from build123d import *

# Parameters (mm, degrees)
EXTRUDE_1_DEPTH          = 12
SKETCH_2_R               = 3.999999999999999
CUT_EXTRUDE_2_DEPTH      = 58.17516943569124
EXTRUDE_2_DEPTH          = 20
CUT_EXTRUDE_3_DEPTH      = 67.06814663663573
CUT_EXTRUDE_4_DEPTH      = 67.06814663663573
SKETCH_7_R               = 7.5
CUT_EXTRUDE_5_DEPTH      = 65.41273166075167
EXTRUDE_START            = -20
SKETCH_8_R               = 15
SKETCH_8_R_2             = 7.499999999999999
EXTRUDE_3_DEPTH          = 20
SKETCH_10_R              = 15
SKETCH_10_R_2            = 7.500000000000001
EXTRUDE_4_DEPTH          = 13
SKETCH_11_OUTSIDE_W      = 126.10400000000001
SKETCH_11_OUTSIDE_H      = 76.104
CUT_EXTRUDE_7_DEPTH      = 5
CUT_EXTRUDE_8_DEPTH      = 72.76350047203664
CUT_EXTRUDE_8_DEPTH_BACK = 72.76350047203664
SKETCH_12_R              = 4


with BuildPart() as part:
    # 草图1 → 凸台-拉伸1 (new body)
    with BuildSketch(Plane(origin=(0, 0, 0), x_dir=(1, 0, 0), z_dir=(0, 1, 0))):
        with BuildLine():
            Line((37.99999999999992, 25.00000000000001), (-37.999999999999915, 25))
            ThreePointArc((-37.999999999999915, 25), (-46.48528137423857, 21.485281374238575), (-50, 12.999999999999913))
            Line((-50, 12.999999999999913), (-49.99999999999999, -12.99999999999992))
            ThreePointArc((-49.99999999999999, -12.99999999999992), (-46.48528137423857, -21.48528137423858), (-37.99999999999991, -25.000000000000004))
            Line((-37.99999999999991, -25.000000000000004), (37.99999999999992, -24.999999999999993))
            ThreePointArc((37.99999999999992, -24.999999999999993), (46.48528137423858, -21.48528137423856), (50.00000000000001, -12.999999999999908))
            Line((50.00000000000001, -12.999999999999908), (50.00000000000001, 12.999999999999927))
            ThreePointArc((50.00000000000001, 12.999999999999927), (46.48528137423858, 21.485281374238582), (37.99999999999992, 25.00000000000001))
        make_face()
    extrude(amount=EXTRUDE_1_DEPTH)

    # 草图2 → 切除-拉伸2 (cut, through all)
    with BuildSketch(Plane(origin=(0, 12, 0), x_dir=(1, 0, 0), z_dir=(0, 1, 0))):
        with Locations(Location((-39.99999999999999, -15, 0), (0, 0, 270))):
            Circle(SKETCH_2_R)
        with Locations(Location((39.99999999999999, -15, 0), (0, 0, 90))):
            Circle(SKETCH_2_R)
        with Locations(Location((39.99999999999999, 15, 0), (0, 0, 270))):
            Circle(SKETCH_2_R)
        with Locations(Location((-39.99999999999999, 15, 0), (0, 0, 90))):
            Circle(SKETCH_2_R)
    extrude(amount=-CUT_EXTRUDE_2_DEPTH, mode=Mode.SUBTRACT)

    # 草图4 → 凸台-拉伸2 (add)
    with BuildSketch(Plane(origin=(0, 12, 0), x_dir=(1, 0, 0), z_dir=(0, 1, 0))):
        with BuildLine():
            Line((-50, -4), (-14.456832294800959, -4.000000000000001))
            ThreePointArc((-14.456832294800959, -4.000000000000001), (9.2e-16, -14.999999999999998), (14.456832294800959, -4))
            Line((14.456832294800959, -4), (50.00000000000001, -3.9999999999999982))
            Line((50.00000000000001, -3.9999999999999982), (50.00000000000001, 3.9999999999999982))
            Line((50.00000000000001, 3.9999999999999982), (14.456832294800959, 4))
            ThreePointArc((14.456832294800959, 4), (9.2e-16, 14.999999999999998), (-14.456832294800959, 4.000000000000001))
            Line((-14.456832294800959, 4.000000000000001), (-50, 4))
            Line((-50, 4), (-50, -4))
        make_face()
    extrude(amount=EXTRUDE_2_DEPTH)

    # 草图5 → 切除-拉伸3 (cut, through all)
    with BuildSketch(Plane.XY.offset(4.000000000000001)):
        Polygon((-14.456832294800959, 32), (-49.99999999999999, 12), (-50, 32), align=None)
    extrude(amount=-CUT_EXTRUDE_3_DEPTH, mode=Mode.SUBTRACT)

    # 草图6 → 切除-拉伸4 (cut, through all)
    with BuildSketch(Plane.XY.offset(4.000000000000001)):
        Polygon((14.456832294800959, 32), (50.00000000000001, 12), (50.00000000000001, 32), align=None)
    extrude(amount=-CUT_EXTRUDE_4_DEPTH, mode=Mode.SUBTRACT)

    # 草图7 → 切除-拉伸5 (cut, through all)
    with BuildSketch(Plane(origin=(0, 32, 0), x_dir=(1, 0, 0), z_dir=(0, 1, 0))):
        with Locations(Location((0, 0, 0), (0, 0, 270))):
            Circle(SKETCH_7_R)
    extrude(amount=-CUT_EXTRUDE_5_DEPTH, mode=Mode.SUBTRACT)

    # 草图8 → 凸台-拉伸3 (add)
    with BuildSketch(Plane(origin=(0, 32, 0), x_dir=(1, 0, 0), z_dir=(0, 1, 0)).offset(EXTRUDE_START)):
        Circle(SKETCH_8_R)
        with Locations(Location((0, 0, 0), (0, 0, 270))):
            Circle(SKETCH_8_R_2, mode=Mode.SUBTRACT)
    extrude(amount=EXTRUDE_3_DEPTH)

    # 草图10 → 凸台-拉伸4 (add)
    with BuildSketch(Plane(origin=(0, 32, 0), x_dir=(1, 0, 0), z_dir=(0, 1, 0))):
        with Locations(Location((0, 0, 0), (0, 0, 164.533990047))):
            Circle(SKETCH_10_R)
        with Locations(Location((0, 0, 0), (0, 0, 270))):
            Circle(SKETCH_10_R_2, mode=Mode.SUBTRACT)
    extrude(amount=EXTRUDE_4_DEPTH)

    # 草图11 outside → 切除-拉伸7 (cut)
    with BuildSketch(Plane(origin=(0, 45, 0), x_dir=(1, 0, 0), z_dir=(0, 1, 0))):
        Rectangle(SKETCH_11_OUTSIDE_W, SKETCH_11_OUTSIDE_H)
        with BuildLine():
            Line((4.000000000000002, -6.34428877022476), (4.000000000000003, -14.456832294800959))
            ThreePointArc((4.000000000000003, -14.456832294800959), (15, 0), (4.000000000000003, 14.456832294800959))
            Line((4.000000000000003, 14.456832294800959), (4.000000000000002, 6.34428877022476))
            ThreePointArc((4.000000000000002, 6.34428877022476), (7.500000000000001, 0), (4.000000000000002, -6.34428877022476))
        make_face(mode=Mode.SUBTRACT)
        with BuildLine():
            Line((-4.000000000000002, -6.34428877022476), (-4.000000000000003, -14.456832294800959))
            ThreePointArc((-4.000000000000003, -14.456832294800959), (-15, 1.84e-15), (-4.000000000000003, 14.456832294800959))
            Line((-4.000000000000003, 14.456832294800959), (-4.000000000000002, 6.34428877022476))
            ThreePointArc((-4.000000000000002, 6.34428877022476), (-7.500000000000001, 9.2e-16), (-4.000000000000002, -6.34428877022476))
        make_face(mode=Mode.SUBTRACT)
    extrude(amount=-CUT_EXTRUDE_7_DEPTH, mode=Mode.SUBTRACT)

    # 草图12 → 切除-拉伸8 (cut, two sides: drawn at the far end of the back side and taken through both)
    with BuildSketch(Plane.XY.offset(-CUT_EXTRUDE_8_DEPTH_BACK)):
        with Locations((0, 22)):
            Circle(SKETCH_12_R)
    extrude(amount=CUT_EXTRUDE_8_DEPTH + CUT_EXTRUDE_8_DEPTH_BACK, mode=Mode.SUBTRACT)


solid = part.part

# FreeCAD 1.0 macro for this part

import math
import FreeCAD as App
import Part
import Sketcher
from FreeCAD import Vector

doc = App.newDocument("Part")
body = doc.addObject("PartDesign::Body", "Body")

# Sketch on XZ plane
sketch1 = doc.addObject("Sketcher::SketchObject", "Sketch")
body.addObject(sketch1)
sketch1.AttachmentSupport = (doc.XZ_Plane, [""])
sketch1.MapMode = "FlatFace"
sketch1.addGeometry(Part.LineSegment(Vector(38, -25, 0), Vector(-38, -25, 0)), False)
sketch1.addGeometry(Part.ArcOfCircle(Part.Circle(Vector(-38, -13, 0), Vector(0, 0, 1), 12), math.radians(180), math.radians(270)), False)
sketch1.addGeometry(Part.LineSegment(Vector(-50, -13, 0), Vector(-50, 13, 0)), False)
sketch1.addGeometry(Part.ArcOfCircle(Part.Circle(Vector(-38, 13, 0), Vector(0, 0, 1), 12), math.radians(90), math.radians(180)), False)
sketch1.addGeometry(Part.LineSegment(Vector(-38, 25, 0), Vector(38, 25, 0)), False)
sketch1.addGeometry(Part.ArcOfCircle(Part.Circle(Vector(38, 13, 0), Vector(0, 0, 1), 12), math.radians(0), math.radians(90)), False)
sketch1.addGeometry(Part.LineSegment(Vector(50, 13, 0), Vector(50, -13, 0)), False)
sketch1.addGeometry(Part.ArcOfCircle(Part.Circle(Vector(38, -13, 0), Vector(0, 0, 1), 12), math.radians(-90), math.radians(0)), False)
sketch1.addConstraint(Sketcher.Constraint("Tangent", 0, 2, 1, 2))
sketch1.addConstraint(Sketcher.Constraint("Tangent", 1, 1, 2, 1))
sketch1.addConstraint(Sketcher.Constraint("Tangent", 2, 2, 3, 2))
sketch1.addConstraint(Sketcher.Constraint("Tangent", 3, 1, 4, 1))
sketch1.addConstraint(Sketcher.Constraint("Tangent", 4, 2, 5, 2))
sketch1.addConstraint(Sketcher.Constraint("Tangent", 5, 1, 6, 1))
sketch1.addConstraint(Sketcher.Constraint("Tangent", 6, 2, 7, 2))
sketch1.addConstraint(Sketcher.Constraint("Tangent", 7, 1, 0, 1))
sketch1.addConstraint(Sketcher.Constraint("Horizontal", 0))
sketch1.addConstraint(Sketcher.Constraint("Vertical", 2))
sketch1.addConstraint(Sketcher.Constraint("Horizontal", 4))
sketch1.addConstraint(Sketcher.Constraint("Vertical", 6))
sketch1.addConstraint(Sketcher.Constraint("Equal", 1, 3))
sketch1.addConstraint(Sketcher.Constraint("Equal", 3, 5))
sketch1.addConstraint(Sketcher.Constraint("Equal", 5, 7))
sketch1.addConstraint(Sketcher.Constraint("Symmetric", 1, 3, 5, 3, -1, 1))
sketch1.addConstraint(Sketcher.Constraint("Radius", 1, 12.0))
sketch1.addConstraint(Sketcher.Constraint("DistanceX", 0, 2, 0, 1, 76.0))
sketch1.addConstraint(Sketcher.Constraint("DistanceY", 2, 1, 2, 2, 26.0))
pad1 = doc.addObject("PartDesign::Pad", "Pad")
body.addObject(pad1)
pad1.Profile = sketch1
pad1.Length = 12
pad1.Reversed = True

# Sketch on XZ plane
sketch2 = doc.addObject("Sketcher::SketchObject", "Sketch001")
body.addObject(sketch2)
sketch2.AttachmentSupport = (doc.XZ_Plane, [""])
sketch2.MapMode = "FlatFace"
sketch2.AttachmentOffset = App.Placement(Vector(0, 0, -12), App.Rotation())
sketch2.addGeometry(Part.Circle(Vector(-40, 15, 0), Vector(0, 0, 1), 4), False)
sketch2.addGeometry(Part.Circle(Vector(40, 15, 0), Vector(0, 0, 1), 4), False)
sketch2.addGeometry(Part.Circle(Vector(40, -15, 0), Vector(0, 0, 1), 4), False)
sketch2.addGeometry(Part.Circle(Vector(-40, -15, 0), Vector(0, 0, 1), 4), False)
sketch2.addConstraint(Sketcher.Constraint("Equal", 0, 1))
sketch2.addConstraint(Sketcher.Constraint("Equal", 1, 2))
sketch2.addConstraint(Sketcher.Constraint("Equal", 2, 3))
sketch2.addConstraint(Sketcher.Constraint("Symmetric", 0, 3, 2, 3, -1, 1))
sketch2.addConstraint(Sketcher.Constraint("Symmetric", 1, 3, 3, 3, -1, 1))
sketch2.addConstraint(Sketcher.Constraint("Symmetric", 0, 3, 1, 3, -2))
sketch2.addConstraint(Sketcher.Constraint("Diameter", 0, 8.0))
sketch2.addConstraint(Sketcher.Constraint("DistanceX", 0, 3, -1, 1, 40.0))
sketch2.addConstraint(Sketcher.Constraint("DistanceY", -1, 1, 0, 3, 15.0))
pocket1 = doc.addObject("PartDesign::Pocket", "Pocket")
body.addObject(pocket1)
pocket1.Profile = sketch2
pocket1.Type = "ThroughAll"
pocket1.Reversed = True

# Sketch on XZ plane
sketch3 = doc.addObject("Sketcher::SketchObject", "Sketch002")
body.addObject(sketch3)
sketch3.AttachmentSupport = (doc.XZ_Plane, [""])
sketch3.MapMode = "FlatFace"
sketch3.AttachmentOffset = App.Placement(Vector(0, 0, -12), App.Rotation())
sketch3.addGeometry(Part.LineSegment(Vector(-50, 4, 0), Vector(-14.456832, 4, 0)), False)
sketch3.addGeometry(Part.ArcOfCircle(Part.Circle(Vector(0, 0, 0), Vector(0, 0, 1), 15), math.radians(15.46601), math.radians(164.53399)), False)
sketch3.addGeometry(Part.LineSegment(Vector(14.456832, 4, 0), Vector(50, 4, 0)), False)
sketch3.addGeometry(Part.LineSegment(Vector(50, 4, 0), Vector(50, -4, 0)), False)
sketch3.addGeometry(Part.LineSegment(Vector(50, -4, 0), Vector(14.456832, -4, 0)), False)
sketch3.addGeometry(Part.ArcOfCircle(Part.Circle(Vector(0, 0, 0), Vector(0, 0, 1), 15), math.radians(-164.53399), math.radians(-15.46601)), False)
sketch3.addGeometry(Part.LineSegment(Vector(-14.456832, -4, 0), Vector(-50, -4, 0)), False)
sketch3.addGeometry(Part.LineSegment(Vector(-50, -4, 0), Vector(-50, 4, 0)), False)
sketch3.addConstraint(Sketcher.Constraint("Coincident", 0, 2, 1, 2))
sketch3.addConstraint(Sketcher.Constraint("Coincident", 1, 1, 2, 1))
sketch3.addConstraint(Sketcher.Constraint("Coincident", 2, 2, 3, 1))
sketch3.addConstraint(Sketcher.Constraint("Coincident", 3, 2, 4, 1))
sketch3.addConstraint(Sketcher.Constraint("Coincident", 4, 2, 5, 2))
sketch3.addConstraint(Sketcher.Constraint("Coincident", 5, 1, 6, 1))
sketch3.addConstraint(Sketcher.Constraint("Coincident", 6, 2, 7, 1))
sketch3.addConstraint(Sketcher.Constraint("Coincident", 7, 2, 0, 1))
sketch3.addConstraint(Sketcher.Constraint("Horizontal", 0))
sketch3.addConstraint(Sketcher.Constraint("Horizontal", 2))
sketch3.addConstraint(Sketcher.Constraint("Vertical", 3))
sketch3.addConstraint(Sketcher.Constraint("Horizontal", 4))
sketch3.addConstraint(Sketcher.Constraint("Horizontal", 6))
sketch3.addConstraint(Sketcher.Constraint("Vertical", 7))
sketch3.addConstraint(Sketcher.Constraint("Coincident", 1, 3, -1, 1))
sketch3.addConstraint(Sketcher.Constraint("Coincident", 5, 3, -1, 1))
sketch3.addConstraint(Sketcher.Constraint("Equal", 1, 5))
sketch3.addConstraint(Sketcher.Constraint("Symmetric", 2, 2, 6, 2, -1, 1))
sketch3.addConstraint(Sketcher.Constraint("Horizontal", 0, 2, 1, 1))
sketch3.addConstraint(Sketcher.Constraint("Horizontal", 4, 2, 5, 1))
sketch3.addConstraint(Sketcher.Constraint("Radius", 1, 15.0))
sketch3.addConstraint(Sketcher.Constraint("DistanceY", 3, 2, 3, 1, 8.0))
sketch3.addConstraint(Sketcher.Constraint("DistanceX", -1, 1, 2, 2, 50.0))
pad2 = doc.addObject("PartDesign::Pad", "Pad001")
body.addObject(pad2)
pad2.Profile = sketch3
pad2.Length = 20
pad2.Reversed = True

# Sketch on XY plane
sketch4 = doc.addObject("Sketcher::SketchObject", "Sketch003")
body.addObject(sketch4)
sketch4.AttachmentSupport = (doc.XY_Plane, [""])
sketch4.MapMode = "FlatFace"
sketch4.AttachmentOffset = App.Placement(Vector(0, 0, 4), App.Rotation())
sketch4.addGeometry(Part.LineSegment(Vector(-50, 12, 0), Vector(-14.456832, 32, 0)), False)
sketch4.addGeometry(Part.LineSegment(Vector(-14.456832, 32, 0), Vector(-50, 32, 0)), False)
sketch4.addGeometry(Part.LineSegment(Vector(-50, 32, 0), Vector(-50, 12, 0)), False)
sketch4.addConstraint(Sketcher.Constraint("Coincident", 0, 2, 1, 1))
sketch4.addConstraint(Sketcher.Constraint("Coincident", 1, 2, 2, 1))
sketch4.addConstraint(Sketcher.Constraint("Coincident", 2, 2, 0, 1))
sketch4.addConstraint(Sketcher.Constraint("Horizontal", 1))
sketch4.addConstraint(Sketcher.Constraint("Vertical", 2))
sketch4.addConstraint(Sketcher.Constraint("DistanceY", 2, 2, 2, 1, 20.0))
sketch4.addConstraint(Sketcher.Constraint("DistanceY", -1, 1, 0, 2, 32.0))
sketch4.addConstraint(Sketcher.Constraint("DistanceX", 1, 2, -1, 1, 50.0))
sketch4.addConstraint(Sketcher.Constraint("Distance", 0, 40.783781))
pocket2 = doc.addObject("PartDesign::Pocket", "Pocket001")
body.addObject(pocket2)
pocket2.Profile = sketch4
pocket2.Type = "ThroughAll"

# Sketch on XY plane
sketch5 = doc.addObject("Sketcher::SketchObject", "Sketch004")
body.addObject(sketch5)
sketch5.AttachmentSupport = (doc.XY_Plane, [""])
sketch5.MapMode = "FlatFace"
sketch5.AttachmentOffset = App.Placement(Vector(0, 0, 4), App.Rotation())
sketch5.addGeometry(Part.LineSegment(Vector(14.456832, 32, 0), Vector(50, 12, 0)), False)
sketch5.addGeometry(Part.LineSegment(Vector(50, 12, 0), Vector(50, 32, 0)), False)
sketch5.addGeometry(Part.LineSegment(Vector(50, 32, 0), Vector(14.456832, 32, 0)), False)
sketch5.addConstraint(Sketcher.Constraint("Coincident", 0, 2, 1, 1))
sketch5.addConstraint(Sketcher.Constraint("Coincident", 1, 2, 2, 1))
sketch5.addConstraint(Sketcher.Constraint("Coincident", 2, 2, 0, 1))
sketch5.addConstraint(Sketcher.Constraint("Vertical", 1))
sketch5.addConstraint(Sketcher.Constraint("Horizontal", 2))
sketch5.addConstraint(Sketcher.Constraint("DistanceY", 1, 1, 1, 2, 20.0))
sketch5.addConstraint(Sketcher.Constraint("DistanceX", -1, 1, 0, 2, 50.0))
sketch5.addConstraint(Sketcher.Constraint("DistanceY", -1, 1, 0, 2, 12.0))
sketch5.addConstraint(Sketcher.Constraint("Distance", 0, 40.783781))
pocket3 = doc.addObject("PartDesign::Pocket", "Pocket002")
body.addObject(pocket3)
pocket3.Profile = sketch5
pocket3.Type = "ThroughAll"

# Sketch on XZ plane
sketch6 = doc.addObject("Sketcher::SketchObject", "Sketch005")
body.addObject(sketch6)
sketch6.AttachmentSupport = (doc.XZ_Plane, [""])
sketch6.MapMode = "FlatFace"
sketch6.AttachmentOffset = App.Placement(Vector(0, 0, -32), App.Rotation())
sketch6.addGeometry(Part.Circle(Vector(0, 0, 0), Vector(0, 0, 1), 7.5), False)
sketch6.addConstraint(Sketcher.Constraint("Coincident", 0, 3, -1, 1))
sketch6.addConstraint(Sketcher.Constraint("Diameter", 0, 15.0))
pocket4 = doc.addObject("PartDesign::Pocket", "Pocket003")
body.addObject(pocket4)
pocket4.Profile = sketch6
pocket4.Type = "ThroughAll"
pocket4.Reversed = True

# Sketch on XZ plane
sketch7 = doc.addObject("Sketcher::SketchObject", "Sketch006")
body.addObject(sketch7)
sketch7.AttachmentSupport = (doc.XZ_Plane, [""])
sketch7.MapMode = "FlatFace"
sketch7.AttachmentOffset = App.Placement(Vector(0, 0, -12), App.Rotation())
sketch7.addGeometry(Part.Circle(Vector(0, 0, 0), Vector(0, 0, 1), 15), False)
sketch7.addGeometry(Part.Circle(Vector(0, 0, 0), Vector(0, 0, 1), 7.5), False)
sketch7.addConstraint(Sketcher.Constraint("Coincident", 0, 3, -1, 1))
sketch7.addConstraint(Sketcher.Constraint("Coincident", 1, 3, -1, 1))
sketch7.addConstraint(Sketcher.Constraint("Diameter", 0, 30.0))
sketch7.addConstraint(Sketcher.Constraint("Diameter", 1, 15.0))
pad3 = doc.addObject("PartDesign::Pad", "Pad002")
body.addObject(pad3)
pad3.Profile = sketch7
pad3.Length = 20
pad3.Reversed = True

# Sketch on XZ plane
sketch8 = doc.addObject("Sketcher::SketchObject", "Sketch007")
body.addObject(sketch8)
sketch8.AttachmentSupport = (doc.XZ_Plane, [""])
sketch8.MapMode = "FlatFace"
sketch8.AttachmentOffset = App.Placement(Vector(0, 0, -32), App.Rotation())
sketch8.addGeometry(Part.Circle(Vector(0, 0, 0), Vector(0, 0, 1), 15), False)
sketch8.addGeometry(Part.Circle(Vector(0, 0, 0), Vector(0, 0, 1), 7.5), False)
sketch8.addConstraint(Sketcher.Constraint("Coincident", 0, 3, -1, 1))
sketch8.addConstraint(Sketcher.Constraint("Coincident", 1, 3, -1, 1))
sketch8.addConstraint(Sketcher.Constraint("Diameter", 0, 30.0))
sketch8.addConstraint(Sketcher.Constraint("Diameter", 1, 15.0))
pad4 = doc.addObject("PartDesign::Pad", "Pad003")
body.addObject(pad4)
pad4.Profile = sketch8
pad4.Length = 13
pad4.Reversed = True

# Sketch on XZ plane
sketch9 = doc.addObject("Sketcher::SketchObject", "Sketch008")
body.addObject(sketch9)
sketch9.AttachmentSupport = (doc.XZ_Plane, [""])
sketch9.MapMode = "FlatFace"
sketch9.AttachmentOffset = App.Placement(Vector(0, 0, -45), App.Rotation())
sketch9.addGeometry(Part.LineSegment(Vector(-63.052, -38.052, 0), Vector(-63.052, 38.052, 0)), False)
sketch9.addGeometry(Part.LineSegment(Vector(-63.052, 38.052, 0), Vector(63.052, 38.052, 0)), False)
sketch9.addGeometry(Part.LineSegment(Vector(63.052, 38.052, 0), Vector(63.052, -38.052, 0)), False)
sketch9.addGeometry(Part.LineSegment(Vector(63.052, -38.052, 0), Vector(-63.052, -38.052, 0)), False)
sketch9.addGeometry(Part.ArcOfCircle(Part.Circle(Vector(0, 0, 0), Vector(0, 0, 1), 7.5), math.radians(122.230953), math.radians(237.769047)), False)
sketch9.addGeometry(Part.LineSegment(Vector(-4, 6.344289, 0), Vector(-4, 14.456832, 0)), False)
sketch9.addGeometry(Part.ArcOfCircle(Part.Circle(Vector(0, 0, 0), Vector(0, 0, 1), 15), math.radians(105.46601), math.radians(254.53399)), False)
sketch9.addGeometry(Part.LineSegment(Vector(-4, -14.456832, 0), Vector(-4, -6.344289, 0)), False)
sketch9.addGeometry(Part.LineSegment(Vector(4, 14.456832, 0), Vector(4, 6.344289, 0)), False)
sketch9.addGeometry(Part.ArcOfCircle(Part.Circle(Vector(0, 0, 0), Vector(0, 0, 1), 7.5), math.radians(-57.769047), math.radians(57.769047)), False)
sketch9.addGeometry(Part.LineSegment(Vector(4, -6.344289, 0), Vector(4, -14.456832, 0)), False)
sketch9.addGeometry(Part.ArcOfCircle(Part.Circle(Vector(0, 0, 0), Vector(0, 0, 1), 15), math.radians(-74.53399), math.radians(74.53399)), False)
sketch9.addConstraint(Sketcher.Constraint("Coincident", 0, 2, 1, 1))
sketch9.addConstraint(Sketcher.Constraint("Coincident", 1, 2, 2, 1))
sketch9.addConstraint(Sketcher.Constraint("Coincident", 2, 2, 3, 1))
sketch9.addConstraint(Sketcher.Constraint("Coincident", 3, 2, 0, 1))
sketch9.addConstraint(Sketcher.Constraint("Coincident", 4, 1, 5, 1))
sketch9.addConstraint(Sketcher.Constraint("Coincident", 5, 2, 6, 1))
sketch9.addConstraint(Sketcher.Constraint("Coincident", 6, 2, 7, 1))
sketch9.addConstraint(Sketcher.Constraint("Coincident", 7, 2, 4, 2))
sketch9.addConstraint(Sketcher.Constraint("Coincident", 8, 2, 9, 2))
sketch9.addConstraint(Sketcher.Constraint("Coincident", 9, 1, 10, 1))
sketch9.addConstraint(Sketcher.Constraint("Coincident", 10, 2, 11, 1))
sketch9.addConstraint(Sketcher.Constraint("Coincident", 11, 2, 8, 1))
sketch9.addConstraint(Sketcher.Constraint("Vertical", 0))
sketch9.addConstraint(Sketcher.Constraint("Horizontal", 1))
sketch9.addConstraint(Sketcher.Constraint("Vertical", 2))
sketch9.addConstraint(Sketcher.Constraint("Horizontal", 3))
sketch9.addConstraint(Sketcher.Constraint("Vertical", 5))
sketch9.addConstraint(Sketcher.Constraint("Vertical", 7))
sketch9.addConstraint(Sketcher.Constraint("Vertical", 8))
sketch9.addConstraint(Sketcher.Constraint("Vertical", 10))
sketch9.addConstraint(Sketcher.Constraint("Coincident", 4, 3, -1, 1))
sketch9.addConstraint(Sketcher.Constraint("Coincident", 6, 3, -1, 1))
sketch9.addConstraint(Sketcher.Constraint("Coincident", 9, 3, -1, 1))
sketch9.addConstraint(Sketcher.Constraint("Coincident", 11, 3, -1, 1))
sketch9.addConstraint(Sketcher.Constraint("Equal", 4, 9))
sketch9.addConstraint(Sketcher.Constraint("Equal", 6, 11))
sketch9.addConstraint(Sketcher.Constraint("Symmetric", 0, 2, 2, 2, -1, 1))
sketch9.addConstraint(Sketcher.Constraint("Horizontal", 4, 1, 8, 2))
sketch9.addConstraint(Sketcher.Constraint("Horizontal", 7, 2, 9, 1))
sketch9.addConstraint(Sketcher.Constraint("Vertical", 5, 2, 6, 2))
sketch9.addConstraint(Sketcher.Constraint("Radius", 6, 15.0))
sketch9.addConstraint(Sketcher.Constraint("Radius", 4, 7.5))
sketch9.addConstraint(Sketcher.Constraint("DistanceX", 4, 1, -1, 1, 4.0))
sketch9.addConstraint(Sketcher.Constraint("DistanceX", 1, 1, 1, 2, 126.104))
sketch9.addConstraint(Sketcher.Constraint("DistanceY", 0, 1, 0, 2, 76.104))
pocket5 = doc.addObject("PartDesign::Pocket", "Pocket004")
body.addObject(pocket5)
pocket5.Profile = sketch9
pocket5.Length = 5
pocket5.Reversed = True

# Sketch on XY plane
sketch10 = doc.addObject("Sketcher::SketchObject", "Sketch009")
body.addObject(sketch10)
sketch10.AttachmentSupport = (doc.XY_Plane, [""])
sketch10.MapMode = "FlatFace"
sketch10.addGeometry(Part.Circle(Vector(0, 22, 0), Vector(0, 0, 1), 4), False)
sketch10.addConstraint(Sketcher.Constraint("PointOnObject", 0, 3, -2))
sketch10.addConstraint(Sketcher.Constraint("Diameter", 0, 8.0))
sketch10.addConstraint(Sketcher.Constraint("DistanceY", -1, 1, 0, 3, 22.0))
pocket6 = doc.addObject("PartDesign::Pocket", "Pocket005")
body.addObject(pocket6)
pocket6.Profile = sketch10
pocket6.Type = "ThroughAll"
pocket6.Midplane = True

doc.recompute()
